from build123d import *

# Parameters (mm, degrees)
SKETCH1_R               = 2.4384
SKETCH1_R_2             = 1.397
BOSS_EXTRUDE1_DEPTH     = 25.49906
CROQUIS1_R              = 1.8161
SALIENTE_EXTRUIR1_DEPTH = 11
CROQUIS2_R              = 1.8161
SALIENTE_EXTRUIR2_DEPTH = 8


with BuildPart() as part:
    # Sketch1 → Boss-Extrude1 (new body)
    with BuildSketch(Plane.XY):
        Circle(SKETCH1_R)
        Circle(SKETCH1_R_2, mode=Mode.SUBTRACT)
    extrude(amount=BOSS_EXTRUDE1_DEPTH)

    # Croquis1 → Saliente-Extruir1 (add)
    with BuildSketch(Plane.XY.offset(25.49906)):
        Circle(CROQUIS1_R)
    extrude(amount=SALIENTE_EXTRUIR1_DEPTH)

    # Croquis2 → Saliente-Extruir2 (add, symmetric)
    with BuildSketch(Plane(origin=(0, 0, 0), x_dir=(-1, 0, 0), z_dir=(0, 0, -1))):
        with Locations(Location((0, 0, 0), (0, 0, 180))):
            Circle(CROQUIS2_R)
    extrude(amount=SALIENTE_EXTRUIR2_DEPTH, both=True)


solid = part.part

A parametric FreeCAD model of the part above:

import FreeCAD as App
import Part
import Sketcher
Q = App.Units.Quantity

doc = App.newDocument("Part")
body = doc.addObject("PartDesign::Body", "Body")

sketch1 = body.newObject("Sketcher::SketchObject", "Sketch")
sketch1.AttachmentSupport = (doc.getObject("XY_Plane"), [""])
sketch1.MapMode = "FlatFace"
sketch1.addGeometry([
    Part.Circle(App.Vector(0, 0, 0), App.Vector(0, 0, 1), 2.4),
    Part.Circle(App.Vector(0, 0, 0), App.Vector(0, 0, 1), 1.4),
], False)
sketch1.addConstraint([
    Sketcher.Constraint("Coincident", 0, 3, -1, 1),
    Sketcher.Constraint("Coincident", 1, 3, -1, 1),
    Sketcher.Constraint("Diameter", 1, Q("0.11 in")),
    Sketcher.Constraint("Diameter", 0, Q("0.192 in")),
])
pad1 = body.newObject("PartDesign::Pad", "Pad")
pad1.Profile = sketch1
pad1.Length = Q("1.0039 in")

sketch2 = body.newObject("Sketcher::SketchObject", "Sketch001")
sketch2.AttachmentSupport = (doc.getObject("XY_Plane"), [""])
sketch2.MapMode = "FlatFace"
sketch2.AttachmentOffset = App.Placement(App.Vector(0, 0, 1.0039 * 25.4), App.Rotation())
sketch2.addGeometry(Part.Circle(App.Vector(0, 0, 0), App.Vector(0, 0, 1), 1.8), False)
sketch2.addConstraint([
    Sketcher.Constraint("Coincident", 0, 3, -1, 1),
    Sketcher.Constraint("Diameter", 0, Q("0.143 in")),
])
pad2 = body.newObject("PartDesign::Pad", "Pad001")
pad2.Profile = sketch2
pad2.Length = 11

sketch3 = body.newObject("Sketcher::SketchObject", "Sketch002")
sketch3.AttachmentSupport = (doc.getObject("XY_Plane"), [""])
sketch3.MapMode = "FlatFace"
sketch3.addGeometry(Part.Circle(App.Vector(0, 0, 0), App.Vector(0, 0, 1), 1.8), False)
sketch3.addConstraint([
    Sketcher.Constraint("Coincident", 0, 3, -1, 1),
    Sketcher.Constraint("Diameter", 0, Q("0.143 in")),
])
pad3 = body.newObject("PartDesign::Pad", "Pad002")
pad3.Profile = sketch3
pad3.Length = 16
pad3.Midplane = True

doc.recompute()
